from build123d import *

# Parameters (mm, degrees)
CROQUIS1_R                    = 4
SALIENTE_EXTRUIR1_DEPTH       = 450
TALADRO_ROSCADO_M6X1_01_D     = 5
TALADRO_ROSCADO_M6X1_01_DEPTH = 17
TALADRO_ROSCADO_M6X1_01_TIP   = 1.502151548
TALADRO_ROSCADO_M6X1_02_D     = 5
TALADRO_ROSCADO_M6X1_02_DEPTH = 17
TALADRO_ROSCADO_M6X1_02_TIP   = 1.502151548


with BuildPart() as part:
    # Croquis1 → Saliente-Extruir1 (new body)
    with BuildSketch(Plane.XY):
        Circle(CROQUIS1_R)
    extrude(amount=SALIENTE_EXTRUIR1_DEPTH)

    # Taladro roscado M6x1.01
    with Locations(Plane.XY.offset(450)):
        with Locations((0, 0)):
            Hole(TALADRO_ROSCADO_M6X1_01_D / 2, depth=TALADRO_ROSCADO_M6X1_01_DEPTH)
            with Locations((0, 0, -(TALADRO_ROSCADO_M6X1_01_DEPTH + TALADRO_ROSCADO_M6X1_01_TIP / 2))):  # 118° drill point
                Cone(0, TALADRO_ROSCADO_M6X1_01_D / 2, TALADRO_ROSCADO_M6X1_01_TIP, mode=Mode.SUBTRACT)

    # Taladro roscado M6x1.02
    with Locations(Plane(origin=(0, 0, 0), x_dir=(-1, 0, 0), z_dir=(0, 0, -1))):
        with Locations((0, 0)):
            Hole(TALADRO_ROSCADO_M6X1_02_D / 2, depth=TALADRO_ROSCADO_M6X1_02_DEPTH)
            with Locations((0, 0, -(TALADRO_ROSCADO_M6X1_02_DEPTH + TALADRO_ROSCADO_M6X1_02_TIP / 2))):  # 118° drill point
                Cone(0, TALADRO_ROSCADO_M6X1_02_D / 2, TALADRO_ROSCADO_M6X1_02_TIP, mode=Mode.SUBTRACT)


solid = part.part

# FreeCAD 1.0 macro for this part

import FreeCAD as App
import Part
import Sketcher
from FreeCAD import Vector

doc = App.newDocument("Part")
body = doc.addObject("PartDesign::Body", "Body")

# Sketch on XY plane
sketch1 = body.newObject("Sketcher::SketchObject", "Sketch")
sketch1.AttachmentSupport = (doc.getObject("XY_Plane"), [""])
sketch1.MapMode = "FlatFace"
sketch1.addGeometry(Part.Circle(Vector(0, 0, 0), Vector(0, 0, 1), 4), False)
sketch1.addConstraint([
    Sketcher.Constraint("Coincident", 0, 3, -1, 1),
    Sketcher.Constraint("Diameter", 0, 8.0),
])
pad1 = body.newObject("PartDesign::Pad", "Pad")
pad1.Profile = sketch1
pad1.Length = 450

# Sketch on XY plane
sketch2 = body.newObject("Sketcher::SketchObject", "Sketch001")
sketch2.AttachmentSupport = (doc.getObject("XY_Plane"), [""])
sketch2.MapMode = "FlatFace"
sketch2.AttachmentOffset = App.Placement(Vector(0, 0, 450), App.Rotation())
sketch2.addGeometry(Part.Circle(Vector(0, 0, 0), Vector(0, 0, 1), 2.5), False)
sketch2.addConstraint([
    Sketcher.Constraint("Coincident", 0, 3, -1, 1),
    Sketcher.Constraint("Diameter", 0, 5.0),
])
doc.recompute()
hole = body.newObject("PartDesign::Hole", "Hole")
hole.Profile = sketch2
hole.ThreadType = "None"
hole.Diameter = 5
hole.DepthType = "Dimension"
hole.Depth = 17
hole.DrillPoint = "Angled"
hole.DrillPointAngle = 118

# Sketch on XY plane
sketch3 = body.newObject("Sketcher::SketchObject", "Sketch002")
sketch3.AttachmentSupport = (doc.getObject("XY_Plane"), [""])
sketch3.MapMode = "FlatFace"
sketch3.addGeometry(Part.Circle(Vector(0, 0, 0), Vector(0, 0, 1), 2.5), False)
sketch3.addConstraint([
    Sketcher.Constraint("Coincident", 0, 3, -1, 1),
    Sketcher.Constraint("Diameter", 0, 5.0),
])
doc.recompute()
hole2 = body.newObject("PartDesign::Hole", "Hole001")
hole2.Profile = sketch3
hole2.ThreadType = "None"
hole2.Diameter = 5
hole2.DepthType = "Dimension"
hole2.Depth = 17
hole2.DrillPoint = "Angled"
hole2.DrillPointAngle = 118
hole2.Reversed = True

doc.recompute()
